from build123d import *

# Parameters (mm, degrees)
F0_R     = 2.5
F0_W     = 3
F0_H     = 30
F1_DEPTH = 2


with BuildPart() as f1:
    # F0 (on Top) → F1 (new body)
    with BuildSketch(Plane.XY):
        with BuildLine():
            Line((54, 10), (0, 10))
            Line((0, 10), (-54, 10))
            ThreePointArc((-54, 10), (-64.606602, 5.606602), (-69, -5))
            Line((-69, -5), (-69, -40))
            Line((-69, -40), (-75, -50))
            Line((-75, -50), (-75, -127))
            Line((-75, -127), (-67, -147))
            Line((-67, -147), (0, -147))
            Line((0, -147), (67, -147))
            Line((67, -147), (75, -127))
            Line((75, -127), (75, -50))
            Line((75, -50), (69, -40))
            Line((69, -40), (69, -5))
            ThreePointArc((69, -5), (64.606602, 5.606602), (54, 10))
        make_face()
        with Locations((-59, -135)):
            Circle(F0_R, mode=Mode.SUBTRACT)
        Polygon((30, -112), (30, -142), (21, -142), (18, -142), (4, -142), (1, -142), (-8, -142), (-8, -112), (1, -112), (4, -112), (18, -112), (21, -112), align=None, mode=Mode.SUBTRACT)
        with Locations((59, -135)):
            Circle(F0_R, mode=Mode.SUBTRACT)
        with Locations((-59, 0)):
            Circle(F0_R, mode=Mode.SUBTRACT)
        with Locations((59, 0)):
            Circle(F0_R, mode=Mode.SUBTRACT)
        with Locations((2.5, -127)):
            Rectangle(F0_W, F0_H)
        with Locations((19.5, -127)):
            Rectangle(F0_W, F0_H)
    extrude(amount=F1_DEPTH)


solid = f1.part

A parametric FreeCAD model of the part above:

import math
import FreeCAD as App
import Part
import Sketcher

V = App.Vector

doc = App.newDocument("Part")
body = doc.addObject("PartDesign::Body", "Body")

sketch1 = doc.addObject("Sketcher::SketchObject", "Sketch")
body.addObject(sketch1)
sketch1.AttachmentSupport = (doc.XY_Plane, [""])
sketch1.MapMode = "FlatFace"
sketch1.addGeometry([
    Part.LineSegment(V(54, 10, 0), V(-54, 10, 0)),
    Part.ArcOfCircle(Part.Circle(V(-54, -5, 0), V(0, 0, 1), 15), math.radians(90), math.radians(180)),
    Part.LineSegment(V(-69, -5, 0), V(-69, -40, 0)),
    Part.LineSegment(V(-69, -40, 0), V(-75, -50, 0)),
    Part.LineSegment(V(-75, -50, 0), V(-75, -127, 0)),
    Part.LineSegment(V(-75, -127, 0), V(-67, -147, 0)),
    Part.LineSegment(V(-67, -147, 0), V(67, -147, 0)),
    Part.LineSegment(V(67, -147, 0), V(75, -127, 0)),
    Part.LineSegment(V(75, -127, 0), V(75, -50, 0)),
    Part.LineSegment(V(75, -50, 0), V(69, -40, 0)),
    Part.LineSegment(V(69, -40, 0), V(69, -5, 0)),
    Part.ArcOfCircle(Part.Circle(V(54, -5, 0), V(0, 0, 1), 15), math.radians(0), math.radians(90)),
    Part.Circle(V(-59, -135, 0), V(0, 0, 1), 2.5),
    Part.LineSegment(V(-8, -112, 0), V(1, -112, 0)),
    Part.LineSegment(V(1, -112, 0), V(1, -142, 0)),
    Part.LineSegment(V(1, -142, 0), V(-8, -142, 0)),
    Part.LineSegment(V(-8, -142, 0), V(-8, -112, 0)),
    Part.LineSegment(V(4, -112, 0), V(18, -112, 0)),
    Part.LineSegment(V(18, -112, 0), V(18, -142, 0)),
    Part.LineSegment(V(18, -142, 0), V(4, -142, 0)),
    Part.LineSegment(V(4, -142, 0), V(4, -112, 0)),
    Part.LineSegment(V(21, -112, 0), V(30, -112, 0)),
    Part.LineSegment(V(30, -112, 0), V(30, -142, 0)),
    Part.LineSegment(V(30, -142, 0), V(21, -142, 0)),
    Part.LineSegment(V(21, -142, 0), V(21, -112, 0)),
    Part.Circle(V(59, -135, 0), V(0, 0, 1), 2.5),
    Part.Circle(V(-59, 0, 0), V(0, 0, 1), 2.5),
    Part.Circle(V(59, 0, 0), V(0, 0, 1), 2.5),
], False)
sketch1.addConstraint([
    Sketcher.Constraint("Tangent", 0, 2, 1, 1),
    Sketcher.Constraint("Tangent", 1, 2, 2, 1),
    Sketcher.Constraint("Coincident", 2, 2, 3, 1),
    Sketcher.Constraint("Coincident", 3, 2, 4, 1),
    Sketcher.Constraint("Coincident", 4, 2, 5, 1),
    Sketcher.Constraint("Coincident", 5, 2, 6, 1),
    Sketcher.Constraint("Coincident", 6, 2, 7, 1),
    Sketcher.Constraint("Coincident", 7, 2, 8, 1),
    Sketcher.Constraint("Coincident", 8, 2, 9, 1),
    Sketcher.Constraint("Coincident", 9, 2, 10, 1),
    Sketcher.Constraint("Tangent", 10, 2, 11, 1),
    Sketcher.Constraint("Tangent", 11, 2, 0, 1),
    Sketcher.Constraint("Coincident", 13, 2, 14, 1),
    Sketcher.Constraint("Coincident", 14, 2, 15, 1),
    Sketcher.Constraint("Coincident", 15, 2, 16, 1),
    Sketcher.Constraint("Coincident", 16, 2, 13, 1),
    Sketcher.Constraint("Coincident", 17, 2, 18, 1),
    Sketcher.Constraint("Coincident", 18, 2, 19, 1),
    Sketcher.Constraint("Coincident", 19, 2, 20, 1),
    Sketcher.Constraint("Coincident", 20, 2, 17, 1),
    Sketcher.Constraint("Coincident", 21, 2, 22, 1),
    Sketcher.Constraint("Coincident", 22, 2, 23, 1),
    Sketcher.Constraint("Coincident", 23, 2, 24, 1),
    Sketcher.Constraint("Coincident", 24, 2, 21, 1),
    Sketcher.Constraint("Horizontal", 0),
    Sketcher.Constraint("Vertical", 2),
    Sketcher.Constraint("Vertical", 4),
    Sketcher.Constraint("Horizontal", 6),
    Sketcher.Constraint("Vertical", 8),
    Sketcher.Constraint("Vertical", 10),
    Sketcher.Constraint("Horizontal", 13),
    Sketcher.Constraint("Vertical", 14),
    Sketcher.Constraint("Horizontal", 15),
    Sketcher.Constraint("Vertical", 16),
    Sketcher.Constraint("Horizontal", 17),
    Sketcher.Constraint("Vertical", 18),
    Sketcher.Constraint("Horizontal", 19),
    Sketcher.Constraint("Vertical", 20),
    Sketcher.Constraint("Horizontal", 21),
    Sketcher.Constraint("Vertical", 22),
    Sketcher.Constraint("Horizontal", 23),
    Sketcher.Constraint("Vertical", 24),
    Sketcher.Constraint("Equal", 1, 11),
    Sketcher.Constraint("Equal", 12, 25),
    Sketcher.Constraint("Equal", 25, 26),
    Sketcher.Constraint("Equal", 26, 27),
    Sketcher.Constraint("Symmetric", 26, 3, 27, 3, -1, 1),
    Sketcher.Constraint("Symmetric", 12, 3, 25, 3, -2),
    Sketcher.Constraint("Symmetric", 4, 2, 7, 2, -2),
    Sketcher.Constraint("Symmetric", 2, 2, 9, 2, -2),
    Sketcher.Constraint("PointOnObject", 26, 3, -1),
    Sketcher.Constraint("Horizontal", 3, 2, 8, 2),
    Sketcher.Constraint("Horizontal", 16, 2, 17, 2),
    Sketcher.Constraint("Horizontal", 15, 2, 18, 2),
    Sketcher.Constraint("Horizontal", 20, 2, 21, 2),
    Sketcher.Constraint("Horizontal", 19, 2, 22, 2),
    Sketcher.Constraint("Vertical", 12, 3, 26, 3),
    Sketcher.Constraint("Equal", 15, 21),
    Sketcher.Constraint("Equal", 5, 7),
    Sketcher.Constraint("Diameter", 12, 5.0),
    Sketcher.Constraint("Radius", 1, 14.999999),
    Sketcher.Constraint("DistanceX", 0, 2, 0, 1, 108.0),
    Sketcher.Constraint("DistanceX", 6, 1, 6, 2, 134.0),
    Sketcher.Constraint("DistanceX", 13, 1, 13, 2, 9.0),
    Sketcher.Constraint("DistanceX", 17, 1, 17, 2, 14.0),
    Sketcher.Constraint("DistanceY", 2, 2, 2, 1, 35.0),
    Sketcher.Constraint("DistanceY", 4, 2, 4, 1, 77.0),
    Sketcher.Constraint("DistanceY", 14, 2, 14, 1, 30.0),
    Sketcher.Constraint("DistanceY", 1, 3, -1, 1, 4.999999),
    Sketcher.Constraint("DistanceX", 12, 3, -1, 1, 59.0),
    Sketcher.Constraint("DistanceY", 12, 3, -1, 1, 135.0),
    Sketcher.Constraint("DistanceX", 3, 2, -1, 1, 75.0),
    Sketcher.Constraint("DistanceY", 3, 2, -1, 1, 50.0),
    Sketcher.Constraint("DistanceY", 5, 2, -1, 1, 147.0),
    Sketcher.Constraint("DistanceX", -1, 1, 13, 2, 1.0),
    Sketcher.Constraint("DistanceY", 13, 2, -1, 1, 112.0),
    Sketcher.Constraint("DistanceX", -1, 1, 17, 2, 18.0),
    Sketcher.Constraint("DistanceX", -1, 1, 21, 2, 30.0),
])
pad1 = doc.addObject("PartDesign::Pad", "Pad")
body.addObject(pad1)
pad1.Profile = sketch1
pad1.Length = 2

doc.recompute()
